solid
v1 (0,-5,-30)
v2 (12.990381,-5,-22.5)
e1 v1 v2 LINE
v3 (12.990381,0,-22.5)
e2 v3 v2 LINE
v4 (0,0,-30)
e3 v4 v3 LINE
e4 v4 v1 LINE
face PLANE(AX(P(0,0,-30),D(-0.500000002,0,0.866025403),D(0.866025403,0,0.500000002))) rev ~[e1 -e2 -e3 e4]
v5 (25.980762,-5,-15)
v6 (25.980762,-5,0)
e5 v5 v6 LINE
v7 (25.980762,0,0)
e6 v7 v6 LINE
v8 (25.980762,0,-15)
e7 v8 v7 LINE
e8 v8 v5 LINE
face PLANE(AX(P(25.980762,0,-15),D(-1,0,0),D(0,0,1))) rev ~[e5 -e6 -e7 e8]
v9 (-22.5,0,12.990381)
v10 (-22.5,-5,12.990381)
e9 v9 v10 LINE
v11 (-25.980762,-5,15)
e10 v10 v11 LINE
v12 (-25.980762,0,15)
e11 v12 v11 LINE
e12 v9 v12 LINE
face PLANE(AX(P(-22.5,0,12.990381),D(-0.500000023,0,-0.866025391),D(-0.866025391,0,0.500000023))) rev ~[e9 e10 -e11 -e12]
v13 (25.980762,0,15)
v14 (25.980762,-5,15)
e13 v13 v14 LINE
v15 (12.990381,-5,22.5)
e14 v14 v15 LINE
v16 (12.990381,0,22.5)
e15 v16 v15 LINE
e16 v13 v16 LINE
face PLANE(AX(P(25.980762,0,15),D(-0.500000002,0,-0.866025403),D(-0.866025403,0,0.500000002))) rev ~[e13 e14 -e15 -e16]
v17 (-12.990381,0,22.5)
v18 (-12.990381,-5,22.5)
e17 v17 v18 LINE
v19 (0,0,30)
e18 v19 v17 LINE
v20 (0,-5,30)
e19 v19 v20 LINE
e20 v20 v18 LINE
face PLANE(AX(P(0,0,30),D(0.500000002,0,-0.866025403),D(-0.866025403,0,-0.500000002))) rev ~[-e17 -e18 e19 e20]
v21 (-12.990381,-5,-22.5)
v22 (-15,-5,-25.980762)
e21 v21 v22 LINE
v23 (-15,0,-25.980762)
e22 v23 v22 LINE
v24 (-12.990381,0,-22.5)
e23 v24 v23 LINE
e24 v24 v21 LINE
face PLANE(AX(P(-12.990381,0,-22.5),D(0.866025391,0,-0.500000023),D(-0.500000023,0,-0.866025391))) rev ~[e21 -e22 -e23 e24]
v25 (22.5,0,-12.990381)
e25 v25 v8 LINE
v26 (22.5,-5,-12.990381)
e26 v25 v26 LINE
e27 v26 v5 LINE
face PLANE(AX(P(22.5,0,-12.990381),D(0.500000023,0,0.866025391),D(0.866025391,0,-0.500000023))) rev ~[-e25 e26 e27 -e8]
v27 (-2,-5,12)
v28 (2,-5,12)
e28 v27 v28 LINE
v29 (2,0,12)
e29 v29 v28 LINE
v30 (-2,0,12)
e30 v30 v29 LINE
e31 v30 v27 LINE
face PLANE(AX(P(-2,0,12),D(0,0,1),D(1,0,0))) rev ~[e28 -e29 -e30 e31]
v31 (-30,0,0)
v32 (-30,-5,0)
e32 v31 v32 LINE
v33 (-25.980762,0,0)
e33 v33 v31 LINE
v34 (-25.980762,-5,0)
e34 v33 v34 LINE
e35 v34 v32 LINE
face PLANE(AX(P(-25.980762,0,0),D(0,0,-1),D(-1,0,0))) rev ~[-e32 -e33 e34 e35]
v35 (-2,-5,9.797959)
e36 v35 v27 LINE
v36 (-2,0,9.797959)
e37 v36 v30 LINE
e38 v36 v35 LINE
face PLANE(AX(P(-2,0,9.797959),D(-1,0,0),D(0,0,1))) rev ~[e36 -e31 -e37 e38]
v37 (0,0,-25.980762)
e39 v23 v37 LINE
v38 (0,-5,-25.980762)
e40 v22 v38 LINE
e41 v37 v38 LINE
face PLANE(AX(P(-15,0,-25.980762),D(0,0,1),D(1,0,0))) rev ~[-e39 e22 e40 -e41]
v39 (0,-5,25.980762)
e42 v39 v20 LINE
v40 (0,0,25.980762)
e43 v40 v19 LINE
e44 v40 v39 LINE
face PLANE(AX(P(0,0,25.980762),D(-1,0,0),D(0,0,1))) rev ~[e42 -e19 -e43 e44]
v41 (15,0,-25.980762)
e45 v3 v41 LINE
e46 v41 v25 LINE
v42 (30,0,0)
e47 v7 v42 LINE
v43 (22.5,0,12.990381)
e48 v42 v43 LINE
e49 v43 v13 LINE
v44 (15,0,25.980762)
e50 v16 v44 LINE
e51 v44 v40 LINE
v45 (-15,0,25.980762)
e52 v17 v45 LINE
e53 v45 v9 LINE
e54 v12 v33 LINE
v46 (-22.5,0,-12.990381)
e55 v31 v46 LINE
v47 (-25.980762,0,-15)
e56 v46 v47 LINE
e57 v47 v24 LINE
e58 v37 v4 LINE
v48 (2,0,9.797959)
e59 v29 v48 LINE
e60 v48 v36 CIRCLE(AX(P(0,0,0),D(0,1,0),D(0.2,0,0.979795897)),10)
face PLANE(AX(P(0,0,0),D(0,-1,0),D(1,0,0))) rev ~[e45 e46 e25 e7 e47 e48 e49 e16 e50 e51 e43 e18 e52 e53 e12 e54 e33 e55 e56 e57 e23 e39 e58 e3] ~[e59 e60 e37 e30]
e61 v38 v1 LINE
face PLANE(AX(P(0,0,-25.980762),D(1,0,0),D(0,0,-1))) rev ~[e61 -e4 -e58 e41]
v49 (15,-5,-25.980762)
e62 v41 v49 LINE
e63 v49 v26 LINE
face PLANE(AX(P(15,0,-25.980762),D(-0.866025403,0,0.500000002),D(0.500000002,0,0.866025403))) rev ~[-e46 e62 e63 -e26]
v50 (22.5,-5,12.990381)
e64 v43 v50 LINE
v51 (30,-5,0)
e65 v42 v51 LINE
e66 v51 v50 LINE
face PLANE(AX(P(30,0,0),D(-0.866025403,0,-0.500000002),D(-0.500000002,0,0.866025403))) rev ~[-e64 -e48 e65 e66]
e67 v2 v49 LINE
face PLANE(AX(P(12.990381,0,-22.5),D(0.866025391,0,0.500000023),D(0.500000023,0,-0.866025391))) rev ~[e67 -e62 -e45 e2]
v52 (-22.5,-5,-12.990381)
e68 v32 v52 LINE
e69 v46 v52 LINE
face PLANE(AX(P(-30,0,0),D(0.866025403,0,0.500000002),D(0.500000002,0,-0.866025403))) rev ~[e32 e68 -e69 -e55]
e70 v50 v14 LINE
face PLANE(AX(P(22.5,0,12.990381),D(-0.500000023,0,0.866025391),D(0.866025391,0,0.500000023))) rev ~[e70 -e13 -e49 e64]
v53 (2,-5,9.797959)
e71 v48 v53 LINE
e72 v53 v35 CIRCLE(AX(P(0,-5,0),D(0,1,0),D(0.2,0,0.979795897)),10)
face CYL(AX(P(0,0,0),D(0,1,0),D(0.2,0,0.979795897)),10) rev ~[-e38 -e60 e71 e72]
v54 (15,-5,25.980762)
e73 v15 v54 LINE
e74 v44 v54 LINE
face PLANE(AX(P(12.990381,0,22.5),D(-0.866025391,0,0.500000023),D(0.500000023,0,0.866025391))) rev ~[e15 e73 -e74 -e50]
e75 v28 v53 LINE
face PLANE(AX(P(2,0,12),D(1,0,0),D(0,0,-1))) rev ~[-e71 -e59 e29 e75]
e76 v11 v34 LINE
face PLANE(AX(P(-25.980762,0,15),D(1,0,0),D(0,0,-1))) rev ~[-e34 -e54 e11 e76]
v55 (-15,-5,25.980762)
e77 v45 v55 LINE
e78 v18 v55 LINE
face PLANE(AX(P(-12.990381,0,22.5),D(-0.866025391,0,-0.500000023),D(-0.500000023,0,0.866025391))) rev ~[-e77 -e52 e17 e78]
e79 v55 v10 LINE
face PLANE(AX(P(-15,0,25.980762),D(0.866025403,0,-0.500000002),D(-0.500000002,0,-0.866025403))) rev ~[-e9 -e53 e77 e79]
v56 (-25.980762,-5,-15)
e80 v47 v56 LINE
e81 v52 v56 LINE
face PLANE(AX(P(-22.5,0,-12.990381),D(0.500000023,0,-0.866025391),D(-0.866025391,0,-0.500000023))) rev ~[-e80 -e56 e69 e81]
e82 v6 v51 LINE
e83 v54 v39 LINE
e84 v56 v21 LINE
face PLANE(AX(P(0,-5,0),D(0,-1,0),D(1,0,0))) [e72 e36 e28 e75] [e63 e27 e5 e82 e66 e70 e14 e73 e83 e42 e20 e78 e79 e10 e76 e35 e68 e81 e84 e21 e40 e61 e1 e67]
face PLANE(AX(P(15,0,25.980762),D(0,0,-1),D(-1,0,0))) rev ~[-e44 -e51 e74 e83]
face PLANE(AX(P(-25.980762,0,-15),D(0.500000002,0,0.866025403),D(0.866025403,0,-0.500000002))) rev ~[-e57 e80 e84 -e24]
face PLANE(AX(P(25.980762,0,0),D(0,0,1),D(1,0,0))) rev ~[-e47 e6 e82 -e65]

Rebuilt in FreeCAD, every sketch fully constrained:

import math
import FreeCAD as App
import Part
import Sketcher

V = App.Vector
Q = App.Units.Quantity

doc = App.newDocument("Part")
params = doc.addObject("Spreadsheet::Sheet", "Params")
for row, (alias, value) in enumerate([
    ("sketch1_radius", "10 mm"),
    ("sketch1_width", "15 mm"),
    ("sketch1_width2", "4 mm"),
    ("pad1_length", "5 mm"),
], start=1):
    params.set(f"A{row}", alias)
    params.set(f"B{row}", "=" + value)
    params.setAlias(f"B{row}", alias)

body = doc.addObject("PartDesign::Body", "Body")

sketch1 = body.newObject("Sketcher::SketchObject", "Sketch")
sketch1.AttachmentSupport = (doc.getObject("XZ_Plane"), [""])
sketch1.MapMode = "FlatFace"
sketch1.addGeometry([
    Part.LineSegment(V(22.5, 12.990381, 0), V(25.980762, 15, 0)),
    Part.LineSegment(V(25.980762, 15, 0), V(12.990381, 22.5, 0)),
    Part.LineSegment(V(12.990381, 22.5, 0), V(15, 25.980762, 0)),
    Part.LineSegment(V(15, 25.980762, 0), V(0, 25.980762, 0)),
    Part.LineSegment(V(0, 25.980762, 0), V(0, 30, 0)),
    Part.LineSegment(V(0, 30, 0), V(-12.990381, 22.5, 0)),
    Part.LineSegment(V(-12.990381, 22.5, 0), V(-15, 25.980762, 0)),
    Part.LineSegment(V(-15, 25.980762, 0), V(-22.5, 12.990381, 0)),
    Part.LineSegment(V(-22.5, 12.990381, 0), V(-25.980762, 15, 0)),
    Part.LineSegment(V(-25.980762, 15, 0), V(-25.980762, 0, 0)),
    Part.LineSegment(V(-25.980762, 0, 0), V(-30, 0, 0)),
    Part.LineSegment(V(-30, 0, 0), V(-22.5, -12.990381, 0)),
    Part.LineSegment(V(-22.5, -12.990381, 0), V(-25.980762, -15, 0)),
    Part.LineSegment(V(-25.980762, -15, 0), V(-12.990381, -22.5, 0)),
    Part.LineSegment(V(-12.990381, -22.5, 0), V(-15, -25.980762, 0)),
    Part.LineSegment(V(-15, -25.980762, 0), V(0, -25.980762, 0)),
    Part.LineSegment(V(0, -25.980762, 0), V(0, -30, 0)),
    Part.LineSegment(V(0, -30, 0), V(12.990381, -22.5, 0)),
    Part.LineSegment(V(12.990381, -22.5, 0), V(15, -25.980762, 0)),
    Part.LineSegment(V(15, -25.980762, 0), V(22.5, -12.990381, 0)),
    Part.LineSegment(V(22.5, -12.990381, 0), V(25.980762, -15, 0)),
    Part.LineSegment(V(25.980762, -15, 0), V(25.980762, 0, 0)),
    Part.LineSegment(V(25.980762, 0, 0), V(30, 0, 0)),
    Part.LineSegment(V(30, 0, 0), V(22.5, 12.990381, 0)),
    Part.LineSegment(V(2, 12, 0), V(2, 9.797959, 0)),
    Part.ArcOfCircle(Part.Circle(V(0, 0, 0), V(0, 0, 1), 10), math.radians(101.536959), math.radians(438.463041)),
    Part.LineSegment(V(-2, 9.797959, 0), V(-2, 12, 0)),
    Part.LineSegment(V(-2, 12, 0), V(2, 12, 0)),
], False)
sketch1.addConstraint([
    Sketcher.Constraint("Coincident", 0, 2, 1, 1),
    Sketcher.Constraint("Coincident", 1, 2, 2, 1),
    Sketcher.Constraint("Coincident", 2, 2, 3, 1),
    Sketcher.Constraint("Coincident", 3, 2, 4, 1),
    Sketcher.Constraint("Coincident", 4, 2, 5, 1),
    Sketcher.Constraint("Coincident", 5, 2, 6, 1),
    Sketcher.Constraint("Coincident", 6, 2, 7, 1),
    Sketcher.Constraint("Coincident", 7, 2, 8, 1),
    Sketcher.Constraint("Coincident", 8, 2, 9, 1),
    Sketcher.Constraint("Coincident", 9, 2, 10, 1),
    Sketcher.Constraint("Coincident", 10, 2, 11, 1),
    Sketcher.Constraint("Coincident", 11, 2, 12, 1),
    Sketcher.Constraint("Coincident", 12, 2, 13, 1),
    Sketcher.Constraint("Coincident", 13, 2, 14, 1),
    Sketcher.Constraint("Coincident", 14, 2, 15, 1),
    Sketcher.Constraint("Coincident", 15, 2, 16, 1),
    Sketcher.Constraint("Coincident", 16, 2, 17, 1),
    Sketcher.Constraint("Coincident", 17, 2, 18, 1),
    Sketcher.Constraint("Coincident", 18, 2, 19, 1),
    Sketcher.Constraint("Coincident", 19, 2, 20, 1),
    Sketcher.Constraint("Coincident", 20, 2, 21, 1),
    Sketcher.Constraint("Coincident", 21, 2, 22, 1),
    Sketcher.Constraint("Coincident", 22, 2, 23, 1),
    Sketcher.Constraint("Coincident", 23, 2, 0, 1),
    Sketcher.Constraint("Coincident", 24, 2, 25, 2),
    Sketcher.Constraint("Coincident", 25, 1, 26, 1),
    Sketcher.Constraint("Coincident", 26, 2, 27, 1),
    Sketcher.Constraint("Coincident", 27, 2, 24, 1),
    Sketcher.Constraint("Horizontal", 3),
    Sketcher.Constraint("Vertical", 4),
    Sketcher.Constraint("Vertical", 9),
    Sketcher.Constraint("Horizontal", 10),
    Sketcher.Constraint("Horizontal", 15),
    Sketcher.Constraint("Vertical", 16),
    Sketcher.Constraint("Vertical", 21),
    Sketcher.Constraint("Horizontal", 22),
    Sketcher.Constraint("Vertical", 24),
    Sketcher.Constraint("Vertical", 26),
    Sketcher.Constraint("Horizontal", 27),
    Sketcher.Constraint("Coincident", 25, 3, -1, 1),
    Sketcher.Constraint("Symmetric", 0, 2, 12, 2, -1, 1),
    Sketcher.Constraint("Symmetric", 1, 2, 13, 2, -1, 1),
    Sketcher.Constraint("Symmetric", 2, 2, 14, 2, -1, 1),
    Sketcher.Constraint("Symmetric", 4, 2, 16, 2, -1, 1),
    Sketcher.Constraint("Symmetric", 5, 2, 17, 2, -1, 1),
    Sketcher.Constraint("Symmetric", 6, 2, 18, 2, -1, 1),
    Sketcher.Constraint("Symmetric", 7, 2, 19, 2, -1, 1),
    Sketcher.Constraint("Symmetric", 8, 2, 20, 2, -1, 1),
    Sketcher.Constraint("Symmetric", 10, 2, 22, 2, -1, 1),
    Sketcher.Constraint("Symmetric", 11, 2, 23, 2, -1, 1),
    Sketcher.Constraint("Symmetric", 1, 2, 5, 2, -2),
    Sketcher.Constraint("Symmetric", 2, 2, 6, 2, -2),
    Sketcher.Constraint("Symmetric", 0, 2, 8, 2, -2),
    Sketcher.Constraint("Symmetric", 11, 2, 19, 2, -2),
    Sketcher.Constraint("PointOnObject", 3, 2, -2),
    Sketcher.Constraint("PointOnObject", 9, 2, -1),
    Sketcher.Constraint("Perpendicular", 1, 2),
    Sketcher.Constraint("Parallel", 0, 5),
    Sketcher.Constraint("Perpendicular", 5, 6),
    Sketcher.Constraint("Parallel", 2, 7),
    Sketcher.Constraint("Parallel", 6, 11),
    Sketcher.Constraint("Horizontal", 24, 2, 25, 1),
    Sketcher.Constraint("Equal", 22, 4),
    Sketcher.Constraint("Equal", 15, 9),
    Sketcher.Constraint("Equal", 1, 5),
    Sketcher.Constraint("Radius", 25, Q("10 mm")),
    Sketcher.Constraint("DistanceX", 3, 2, 3, 1, Q("15 mm")),
    Sketcher.Constraint("DistanceX", 27, 1, 27, 2, Q("4 mm")),
    Sketcher.Constraint("Angle", 0, Q("30.000002 deg")),
    Sketcher.Constraint("DistanceY", -1, 1, 26, 2, Q("12 mm")),
])
sketch1.setExpression("Constraints[65]", "Params.sketch1_radius")
sketch1.setExpression("Constraints[66]", "Params.sketch1_width")
sketch1.setExpression("Constraints[67]", "Params.sketch1_width2")
pad1 = body.newObject("PartDesign::Pad", "Pad")
pad1.Profile = sketch1
pad1.setExpression("Length", "Params.pad1_length")

doc.recompute()
